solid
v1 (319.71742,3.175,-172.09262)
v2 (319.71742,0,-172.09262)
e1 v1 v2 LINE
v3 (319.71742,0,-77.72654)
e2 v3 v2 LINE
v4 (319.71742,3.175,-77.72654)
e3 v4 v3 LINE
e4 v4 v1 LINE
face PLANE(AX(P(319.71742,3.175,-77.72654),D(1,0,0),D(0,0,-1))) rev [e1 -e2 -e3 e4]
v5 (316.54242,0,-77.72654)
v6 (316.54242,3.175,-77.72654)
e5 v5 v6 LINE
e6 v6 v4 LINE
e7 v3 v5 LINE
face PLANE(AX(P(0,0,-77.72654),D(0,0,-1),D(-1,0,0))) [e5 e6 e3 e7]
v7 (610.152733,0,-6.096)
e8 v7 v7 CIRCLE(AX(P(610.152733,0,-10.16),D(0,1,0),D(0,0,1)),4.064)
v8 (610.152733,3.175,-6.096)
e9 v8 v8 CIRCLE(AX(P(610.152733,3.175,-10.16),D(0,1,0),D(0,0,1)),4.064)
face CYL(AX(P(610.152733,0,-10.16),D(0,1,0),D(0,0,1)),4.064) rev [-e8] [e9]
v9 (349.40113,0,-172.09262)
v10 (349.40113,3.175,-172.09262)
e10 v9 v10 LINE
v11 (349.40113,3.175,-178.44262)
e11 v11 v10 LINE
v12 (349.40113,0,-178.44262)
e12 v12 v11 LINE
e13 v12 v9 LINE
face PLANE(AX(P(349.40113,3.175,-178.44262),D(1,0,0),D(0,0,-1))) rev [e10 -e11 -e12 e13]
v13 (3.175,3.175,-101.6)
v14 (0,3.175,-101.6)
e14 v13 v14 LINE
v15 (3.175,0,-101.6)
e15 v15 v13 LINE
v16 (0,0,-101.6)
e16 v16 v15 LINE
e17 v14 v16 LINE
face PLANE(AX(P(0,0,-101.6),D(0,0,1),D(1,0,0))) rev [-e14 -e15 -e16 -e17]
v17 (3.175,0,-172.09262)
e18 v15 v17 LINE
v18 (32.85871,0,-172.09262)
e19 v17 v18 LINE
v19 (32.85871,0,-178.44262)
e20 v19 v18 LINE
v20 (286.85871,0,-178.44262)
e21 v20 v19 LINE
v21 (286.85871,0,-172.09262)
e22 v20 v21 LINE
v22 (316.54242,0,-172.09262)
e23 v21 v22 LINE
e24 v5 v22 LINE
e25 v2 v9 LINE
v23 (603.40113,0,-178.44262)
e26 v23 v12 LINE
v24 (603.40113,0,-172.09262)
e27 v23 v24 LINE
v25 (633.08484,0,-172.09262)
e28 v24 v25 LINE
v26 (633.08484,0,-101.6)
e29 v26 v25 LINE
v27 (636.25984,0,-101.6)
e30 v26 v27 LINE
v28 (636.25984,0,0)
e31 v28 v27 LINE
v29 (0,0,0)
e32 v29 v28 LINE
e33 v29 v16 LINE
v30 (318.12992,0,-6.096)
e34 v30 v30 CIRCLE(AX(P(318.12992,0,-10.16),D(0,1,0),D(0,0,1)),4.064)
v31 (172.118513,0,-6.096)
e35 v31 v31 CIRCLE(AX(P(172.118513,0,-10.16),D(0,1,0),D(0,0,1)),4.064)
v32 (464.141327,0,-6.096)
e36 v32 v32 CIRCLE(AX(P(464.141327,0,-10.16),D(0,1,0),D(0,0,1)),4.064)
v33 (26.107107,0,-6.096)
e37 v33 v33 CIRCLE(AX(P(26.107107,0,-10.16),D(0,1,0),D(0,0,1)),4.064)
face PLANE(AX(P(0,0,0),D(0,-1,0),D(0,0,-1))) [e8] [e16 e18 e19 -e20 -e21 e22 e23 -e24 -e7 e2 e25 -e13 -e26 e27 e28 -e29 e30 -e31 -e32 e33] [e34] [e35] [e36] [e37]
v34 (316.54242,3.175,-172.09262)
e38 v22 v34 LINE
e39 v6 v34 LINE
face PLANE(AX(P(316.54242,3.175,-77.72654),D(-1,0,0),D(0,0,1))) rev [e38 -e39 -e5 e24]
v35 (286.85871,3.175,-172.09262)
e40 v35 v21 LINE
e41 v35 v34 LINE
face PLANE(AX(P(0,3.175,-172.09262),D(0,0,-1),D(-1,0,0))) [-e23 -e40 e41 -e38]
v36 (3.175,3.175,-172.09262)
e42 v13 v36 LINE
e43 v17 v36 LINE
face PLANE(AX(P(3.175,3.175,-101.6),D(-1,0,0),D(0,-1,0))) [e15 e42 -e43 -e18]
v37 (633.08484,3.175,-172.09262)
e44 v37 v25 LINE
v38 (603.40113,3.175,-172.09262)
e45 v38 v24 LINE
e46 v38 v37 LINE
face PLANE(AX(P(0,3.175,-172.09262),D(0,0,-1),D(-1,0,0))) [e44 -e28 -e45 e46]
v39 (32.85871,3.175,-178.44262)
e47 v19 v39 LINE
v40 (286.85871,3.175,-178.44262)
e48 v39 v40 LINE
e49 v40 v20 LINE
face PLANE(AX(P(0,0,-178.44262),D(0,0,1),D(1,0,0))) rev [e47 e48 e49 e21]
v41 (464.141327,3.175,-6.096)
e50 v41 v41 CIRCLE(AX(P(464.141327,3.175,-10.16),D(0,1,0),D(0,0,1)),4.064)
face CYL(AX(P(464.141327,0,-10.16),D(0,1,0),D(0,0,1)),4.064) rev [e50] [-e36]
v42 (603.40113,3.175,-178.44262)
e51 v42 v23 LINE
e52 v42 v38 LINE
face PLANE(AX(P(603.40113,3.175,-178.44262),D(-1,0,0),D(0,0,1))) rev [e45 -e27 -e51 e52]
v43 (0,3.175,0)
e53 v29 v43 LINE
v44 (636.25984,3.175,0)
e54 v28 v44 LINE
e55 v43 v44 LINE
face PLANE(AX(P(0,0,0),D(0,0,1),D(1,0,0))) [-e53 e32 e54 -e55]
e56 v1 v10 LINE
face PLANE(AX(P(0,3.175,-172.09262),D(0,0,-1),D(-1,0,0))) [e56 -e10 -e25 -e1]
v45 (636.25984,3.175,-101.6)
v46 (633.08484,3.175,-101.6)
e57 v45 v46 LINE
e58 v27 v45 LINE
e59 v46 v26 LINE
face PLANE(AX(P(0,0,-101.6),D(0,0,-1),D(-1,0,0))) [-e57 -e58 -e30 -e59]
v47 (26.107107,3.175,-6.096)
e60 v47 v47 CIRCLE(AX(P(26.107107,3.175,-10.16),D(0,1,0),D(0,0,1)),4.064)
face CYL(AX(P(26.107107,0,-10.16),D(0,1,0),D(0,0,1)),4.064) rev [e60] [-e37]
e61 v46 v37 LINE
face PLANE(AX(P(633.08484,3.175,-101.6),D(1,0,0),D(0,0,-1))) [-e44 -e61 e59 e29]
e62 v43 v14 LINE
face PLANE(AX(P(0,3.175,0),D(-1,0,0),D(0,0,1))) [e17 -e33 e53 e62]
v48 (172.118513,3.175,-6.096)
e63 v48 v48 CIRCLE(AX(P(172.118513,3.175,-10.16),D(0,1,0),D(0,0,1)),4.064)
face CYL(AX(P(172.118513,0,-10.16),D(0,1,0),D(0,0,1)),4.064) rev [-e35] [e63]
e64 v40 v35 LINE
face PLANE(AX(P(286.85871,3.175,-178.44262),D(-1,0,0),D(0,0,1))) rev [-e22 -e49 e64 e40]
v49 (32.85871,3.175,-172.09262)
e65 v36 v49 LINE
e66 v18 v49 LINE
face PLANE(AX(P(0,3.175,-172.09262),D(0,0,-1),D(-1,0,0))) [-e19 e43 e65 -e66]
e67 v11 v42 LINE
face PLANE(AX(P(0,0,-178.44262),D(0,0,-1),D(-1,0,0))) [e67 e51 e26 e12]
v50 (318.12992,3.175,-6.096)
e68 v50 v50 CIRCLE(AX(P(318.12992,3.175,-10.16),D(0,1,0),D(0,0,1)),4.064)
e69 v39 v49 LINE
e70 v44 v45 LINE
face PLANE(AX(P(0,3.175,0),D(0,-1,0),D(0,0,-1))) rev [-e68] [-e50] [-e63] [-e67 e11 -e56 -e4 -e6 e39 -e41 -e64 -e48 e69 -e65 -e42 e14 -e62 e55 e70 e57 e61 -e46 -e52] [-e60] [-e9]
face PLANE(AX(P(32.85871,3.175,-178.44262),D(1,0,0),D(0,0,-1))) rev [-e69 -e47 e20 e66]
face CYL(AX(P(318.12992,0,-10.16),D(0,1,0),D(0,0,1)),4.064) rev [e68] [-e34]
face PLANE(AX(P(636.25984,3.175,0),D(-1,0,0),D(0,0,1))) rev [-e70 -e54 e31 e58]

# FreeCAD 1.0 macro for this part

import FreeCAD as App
import Part
import Sketcher

V = App.Vector
Q = App.Units.Quantity

doc = App.newDocument("Part")
body = doc.addObject("PartDesign::Body", "Body")

# Sketch on XZ plane
sketch1 = body.newObject("Sketcher::SketchObject", "Sketch")
sketch1.AttachmentSupport = (doc.getObject("XZ_Plane"), [""])
sketch1.MapMode = "FlatFace"
sketch1.addGeometry(Part.LineSegment(V(0, -172, 0), V(0, 0, 0)), False)
sketch1.addGeometry(Part.LineSegment(V(0, 0, 0), V(636, 0, 0)), False)
sketch1.addGeometry(Part.LineSegment(V(636, 0, 0), V(636, -172, 0)), False)
sketch1.addGeometry(Part.LineSegment(V(636, -172, 0), V(0, -172, 0)), False)
sketch1.addConstraint(Sketcher.Constraint("Coincident", 0, 2, 1, 1))
sketch1.addConstraint(Sketcher.Constraint("Coincident", 1, 2, 2, 1))
sketch1.addConstraint(Sketcher.Constraint("Coincident", 2, 2, 3, 1))
sketch1.addConstraint(Sketcher.Constraint("Coincident", 3, 2, 0, 1))
sketch1.addConstraint(Sketcher.Constraint("Vertical", 0))
sketch1.addConstraint(Sketcher.Constraint("Horizontal", 1))
sketch1.addConstraint(Sketcher.Constraint("Vertical", 2))
sketch1.addConstraint(Sketcher.Constraint("Horizontal", 3))
sketch1.addConstraint(Sketcher.Constraint("Coincident", 0, 2, -1, 1))
sketch1.addConstraint(Sketcher.Constraint("DistanceX", 1, 1, 1, 2, Q("25.0496 in")))
sketch1.addConstraint(Sketcher.Constraint("DistanceY", 0, 1, 0, 2, Q("6.7753 in")))
pad1 = body.newObject("PartDesign::Pad", "Pad")
pad1.Profile = sketch1
pad1.Length = Q("0.125 in")
pad1.Reversed = True

# Sketch on XY plane
sketch2 = body.newObject("Sketcher::SketchObject", "Sketch001")
sketch2.AttachmentSupport = (doc.getObject("XY_Plane"), [""])
sketch2.MapMode = "FlatFace"
sketch2.AttachmentOffset = App.Placement(V(0, 0, -6.7753 * 25.4), App.Rotation())
sketch2.addGeometry(Part.LineSegment(V(319.7, 3.2, 0), V(319.7, 0, 0)), False)
sketch2.addGeometry(Part.LineSegment(V(319.7, 0, 0), V(316.5, 0, 0)), False)
sketch2.addGeometry(Part.LineSegment(V(316.5, 0, 0), V(316.5, 3.2, 0)), False)
sketch2.addGeometry(Part.LineSegment(V(316.5, 3.2, 0), V(319.7, 3.2, 0)), False)
sketch2.addConstraint(Sketcher.Constraint("Coincident", 0, 2, 1, 1))
sketch2.addConstraint(Sketcher.Constraint("Coincident", 1, 2, 2, 1))
sketch2.addConstraint(Sketcher.Constraint("Coincident", 2, 2, 3, 1))
sketch2.addConstraint(Sketcher.Constraint("Coincident", 3, 2, 0, 1))
sketch2.addConstraint(Sketcher.Constraint("Vertical", 0))
sketch2.addConstraint(Sketcher.Constraint("Horizontal", 1))
sketch2.addConstraint(Sketcher.Constraint("Vertical", 2))
sketch2.addConstraint(Sketcher.Constraint("Horizontal", 3))
sketch2.addConstraint(Sketcher.Constraint("PointOnObject", 0, 2, -1))
sketch2.addConstraint(Sketcher.Constraint("Equal", 3, 0))
sketch2.addConstraint(Sketcher.Constraint("DistanceX", 1, 2, 1, 1, Q("0.125 in")))
sketch2.addConstraint(Sketcher.Constraint("DistanceX", -1, 1, 0, 2, Q("12.5873 in")))
pocket1 = body.newObject("PartDesign::Pocket", "Pocket")
pocket1.Profile = sketch2
pocket1.Length = Q("3.7152 in")
pocket1.Reversed = True

# Sketch on XY plane
sketch3 = body.newObject("Sketcher::SketchObject", "Sketch002")
sketch3.AttachmentSupport = (doc.getObject("XY_Plane"), [""])
sketch3.MapMode = "FlatFace"
sketch3.AttachmentOffset = App.Placement(V(0, 0, -6.7753 * 25.4), App.Rotation())
sketch3.addGeometry(Part.LineSegment(V(0, 3.2, 0), V(0, 0, 0)), False)
sketch3.addGeometry(Part.LineSegment(V(0, 0, 0), V(3.2, 0, 0)), False)
sketch3.addGeometry(Part.LineSegment(V(3.2, 0, 0), V(3.2, 3.2, 0)), False)
sketch3.addGeometry(Part.LineSegment(V(3.2, 3.2, 0), V(0, 3.2, 0)), False)
sketch3.addGeometry(Part.LineSegment(V(633.1, 3.2, 0), V(633.1, 0, 0)), False)
sketch3.addGeometry(Part.LineSegment(V(633.1, 0, 0), V(636.3, 0, 0)), False)
sketch3.addGeometry(Part.LineSegment(V(636.3, 0, 0), V(636.3, 3.2, 0)), False)
sketch3.addGeometry(Part.LineSegment(V(636.3, 3.2, 0), V(633.1, 3.2, 0)), False)
sketch3.addConstraint(Sketcher.Constraint("Coincident", 0, 2, 1, 1))
sketch3.addConstraint(Sketcher.Constraint("Coincident", 1, 2, 2, 1))
sketch3.addConstraint(Sketcher.Constraint("Coincident", 2, 2, 3, 1))
sketch3.addConstraint(Sketcher.Constraint("Coincident", 3, 2, 0, 1))
sketch3.addConstraint(Sketcher.Constraint("Coincident", 4, 2, 5, 1))
sketch3.addConstraint(Sketcher.Constraint("Coincident", 5, 2, 6, 1))
sketch3.addConstraint(Sketcher.Constraint("Coincident", 6, 2, 7, 1))
sketch3.addConstraint(Sketcher.Constraint("Coincident", 7, 2, 4, 1))
sketch3.addConstraint(Sketcher.Constraint("Vertical", 0))
sketch3.addConstraint(Sketcher.Constraint("Horizontal", 1))
sketch3.addConstraint(Sketcher.Constraint("Vertical", 2))
sketch3.addConstraint(Sketcher.Constraint("Horizontal", 3))
sketch3.addConstraint(Sketcher.Constraint("Vertical", 4))
sketch3.addConstraint(Sketcher.Constraint("Horizontal", 5))
sketch3.addConstraint(Sketcher.Constraint("Vertical", 6))
sketch3.addConstraint(Sketcher.Constraint("Horizontal", 7))
sketch3.addConstraint(Sketcher.Constraint("Coincident", 0, 2, -1, 1))
sketch3.addConstraint(Sketcher.Constraint("PointOnObject", 4, 2, -1))
sketch3.addConstraint(Sketcher.Constraint("Horizontal", 3, 2, 6, 2))
sketch3.addConstraint(Sketcher.Constraint("Equal", 3, 5))
sketch3.addConstraint(Sketcher.Constraint("Equal", 7, 0))
sketch3.addConstraint(Sketcher.Constraint("DistanceX", 1, 1, 1, 2, Q("0.125 in")))
sketch3.addConstraint(Sketcher.Constraint("DistanceX", -1, 1, 4, 2, Q("24.9246 in")))
pocket2 = body.newObject("PartDesign::Pocket", "Pocket001")
pocket2.Profile = sketch3
pocket2.Length = Q("2.7753 in")
pocket2.Reversed = True

# Sketch on XZ plane
sketch4 = body.newObject("Sketcher::SketchObject", "Sketch003")
sketch4.AttachmentSupport = (doc.getObject("XZ_Plane"), [""])
sketch4.MapMode = "FlatFace"
sketch4.AttachmentOffset = App.Placement(V(0, 0, -0.125 * 25.4), App.Rotation())
sketch4.addGeometry(Part.LineSegment(V(0, -24, 0), V(0, 0, 0)), False)
sketch4.addGeometry(Part.LineSegment(V(0, 0, 0), V(636, 0, 0)), False)
sketch4.addGeometry(Part.LineSegment(V(636, 0, 0), V(636, -24, 0)), False)
sketch4.addGeometry(Part.LineSegment(V(636, -24, 0), V(0, -24, 0)), False)
sketch4.addConstraint(Sketcher.Constraint("Coincident", 0, 2, 1, 1))
sketch4.addConstraint(Sketcher.Constraint("Coincident", 1, 2, 2, 1))
sketch4.addConstraint(Sketcher.Constraint("Coincident", 2, 2, 3, 1))
sketch4.addConstraint(Sketcher.Constraint("Coincident", 3, 2, 0, 1))
sketch4.addConstraint(Sketcher.Constraint("Vertical", 0))
sketch4.addConstraint(Sketcher.Constraint("Horizontal", 1))
sketch4.addConstraint(Sketcher.Constraint("Vertical", 2))
sketch4.addConstraint(Sketcher.Constraint("Horizontal", 3))
sketch4.addConstraint(Sketcher.Constraint("Coincident", 0, 2, -1, 1))
sketch4.addConstraint(Sketcher.Constraint("DistanceX", 1, 1, 1, 2, Q("25.0496 in")))
sketch4.addConstraint(Sketcher.Constraint("DistanceY", 0, 1, 0, 2, Q("0.9604 in")))
pocket3 = body.newObject("PartDesign::Pocket", "Pocket002")
pocket3.Profile = sketch4
pocket3.Type = "ThroughAll"
pocket3.Reversed = True

# Sketch on XZ plane
sketch5 = body.newObject("Sketcher::SketchObject", "Sketch004")
sketch5.AttachmentSupport = (doc.getObject("XZ_Plane"), [""])
sketch5.MapMode = "FlatFace"
sketch5.AttachmentOffset = App.Placement(V(0, 0, -0.125 * 25.4), App.Rotation())
sketch5.addGeometry(Part.LineSegment(V(0, -24, 0), V(0, 0, 0)), False)
sketch5.addGeometry(Part.LineSegment(V(0, 0, 0), V(636, 0, 0)), False)
sketch5.addGeometry(Part.LineSegment(V(636, 0, 0), V(636, -24, 0)), False)
sketch5.addGeometry(Part.LineSegment(V(636, -24, 0), V(0, -24, 0)), False)
sketch5.addConstraint(Sketcher.Constraint("Coincident", 0, 2, 1, 1))
sketch5.addConstraint(Sketcher.Constraint("Coincident", 1, 2, 2, 1))
sketch5.addConstraint(Sketcher.Constraint("Coincident", 2, 2, 3, 1))
sketch5.addConstraint(Sketcher.Constraint("Coincident", 3, 2, 0, 1))
sketch5.addConstraint(Sketcher.Constraint("Vertical", 0))
sketch5.addConstraint(Sketcher.Constraint("Horizontal", 1))
sketch5.addConstraint(Sketcher.Constraint("Vertical", 2))
sketch5.addConstraint(Sketcher.Constraint("Horizontal", 3))
sketch5.addConstraint(Sketcher.Constraint("Coincident", 0, 2, -1, 1))
sketch5.addConstraint(Sketcher.Constraint("DistanceX", 1, 1, 1, 2, Q("25.0496 in")))
sketch5.addConstraint(Sketcher.Constraint("DistanceY", 0, 1, 0, 2, Q("0.9604 in")))
pad2 = body.newObject("PartDesign::Pad", "Pad001")
pad2.Profile = sketch5
pad2.Length = Q("0.125 in")

# Sketch on XY plane
sketch6 = body.newObject("Sketcher::SketchObject", "Sketch005")
sketch6.AttachmentSupport = (doc.getObject("XY_Plane"), [""])
sketch6.MapMode = "FlatFace"
sketch6.AttachmentOffset = App.Placement(V(0, 0, -6.7753 * 25.4), App.Rotation())
sketch6.addGeometry(Part.LineSegment(V(603.4, 3.2, 0), V(603.4, 0, 0)), False)
sketch6.addGeometry(Part.LineSegment(V(603.4, 0, 0), V(349.4, 0, 0)), False)
sketch6.addGeometry(Part.LineSegment(V(349.4, 0, 0), V(349.4, 3.2, 0)), False)
sketch6.addGeometry(Part.LineSegment(V(349.4, 3.2, 0), V(603.4, 3.2, 0)), False)
sketch6.addGeometry(Part.LineSegment(V(286.9, 3.2, 0), V(286.9, 0, 0)), False)
sketch6.addGeometry(Part.LineSegment(V(286.9, 0, 0), V(32.9, 0, 0)), False)
sketch6.addGeometry(Part.LineSegment(V(32.9, 0, 0), V(32.9, 3.2, 0)), False)
sketch6.addGeometry(Part.LineSegment(V(32.9, 3.2, 0), V(286.9, 3.2, 0)), False)
sketch6.addConstraint(Sketcher.Constraint("Coincident", 0, 2, 1, 1))
sketch6.addConstraint(Sketcher.Constraint("Coincident", 1, 2, 2, 1))
sketch6.addConstraint(Sketcher.Constraint("Coincident", 2, 2, 3, 1))
sketch6.addConstraint(Sketcher.Constraint("Coincident", 3, 2, 0, 1))
sketch6.addConstraint(Sketcher.Constraint("Coincident", 4, 2, 5, 1))
sketch6.addConstraint(Sketcher.Constraint("Coincident", 5, 2, 6, 1))
sketch6.addConstraint(Sketcher.Constraint("Coincident", 6, 2, 7, 1))
sketch6.addConstraint(Sketcher.Constraint("Coincident", 7, 2, 4, 1))
sketch6.addConstraint(Sketcher.Constraint("Vertical", 0))
sketch6.addConstraint(Sketcher.Constraint("Horizontal", 1))
sketch6.addConstraint(Sketcher.Constraint("Vertical", 2))
sketch6.addConstraint(Sketcher.Constraint("Horizontal", 3))
sketch6.addConstraint(Sketcher.Constraint("Vertical", 4))
sketch6.addConstraint(Sketcher.Constraint("Horizontal", 5))
sketch6.addConstraint(Sketcher.Constraint("Vertical", 6))
sketch6.addConstraint(Sketcher.Constraint("Horizontal", 7))
sketch6.addConstraint(Sketcher.Constraint("PointOnObject", 0, 2, -1))
sketch6.addConstraint(Sketcher.Constraint("PointOnObject", 4, 2, -1))
sketch6.addConstraint(Sketcher.Constraint("Horizontal", 3, 2, 6, 2))
sketch6.addConstraint(Sketcher.Constraint("Equal", 3, 5))
sketch6.addConstraint(Sketcher.Constraint("DistanceX", 1, 2, 1, 1, Q("10 in")))
sketch6.addConstraint(Sketcher.Constraint("DistanceY", 0, 2, 0, 1, Q("0.125 in")))
sketch6.addConstraint(Sketcher.Constraint("DistanceX", 4, 2, 1, 2, Q("2.4623 in")))
sketch6.addConstraint(Sketcher.Constraint("DistanceX", -1, 1, 0, 2, 603.40113))
pad3 = body.newObject("PartDesign::Pad", "Pad002")
pad3.Profile = sketch6
pad3.Length = Q("0.25 in")
pad3.Reversed = True

# Sketch on XZ plane
sketch7 = body.newObject("Sketcher::SketchObject", "Sketch006")
sketch7.AttachmentSupport = (doc.getObject("XZ_Plane"), [""])
sketch7.MapMode = "FlatFace"
sketch7.AttachmentOffset = App.Placement(V(0, 0, -0.125 * 25.4), App.Rotation())
sketch7.addGeometry(Part.Circle(V(26.1, -10.2, 0), V(0, 0, 1), 4.1), False)
sketch7.addGeometry(Part.Circle(V(172.1, -10.2, 0), V(0, 0, 1), 4.1), False)
sketch7.addGeometry(Part.Circle(V(318.1, -10.2, 0), V(0, 0, 1), 4.1), False)
sketch7.addGeometry(Part.Circle(V(464.1, -10.2, 0), V(0, 0, 1), 4.1), False)
sketch7.addGeometry(Part.Circle(V(610.2, -10.2, 0), V(0, 0, 1), 4.1), False)
sketch7.addConstraint(Sketcher.Constraint("Equal", 0, 1))
sketch7.addConstraint(Sketcher.Constraint("Equal", 1, 2))
sketch7.addConstraint(Sketcher.Constraint("Equal", 2, 3))
sketch7.addConstraint(Sketcher.Constraint("Equal", 3, 4))
sketch7.addConstraint(Sketcher.Constraint("Horizontal", 0, 3, 1, 3))
sketch7.addConstraint(Sketcher.Constraint("Horizontal", 1, 3, 2, 3))
sketch7.addConstraint(Sketcher.Constraint("Horizontal", 2, 3, 3, 3))
sketch7.addConstraint(Sketcher.Constraint("Horizontal", 3, 3, 4, 3))
sketch7.addConstraint(Sketcher.Constraint("Diameter", 0, Q("0.32 in")))
sketch7.addConstraint(Sketcher.Constraint("DistanceY", 0, 3, -1, 1, Q("0.4 in")))
sketch7.addConstraint(Sketcher.Constraint("DistanceX", -1, 1, 2, 3, Q("12.5248 in")))
sketch7.addConstraint(Sketcher.Constraint("DistanceX", 0, 3, 3, 3, 438.03422))
sketch7.addConstraint(Sketcher.Constraint("DistanceX", 1, 3, 4, 3, 438.03422))
sketch7.addConstraint(Sketcher.Constraint("DistanceX", -1, 1, 0, 3, 26.107107))
sketch7.addConstraint(Sketcher.Constraint("DistanceX", -1, 1, 1, 3, 172.118513))
pocket4 = body.newObject("PartDesign::Pocket", "Pocket003")
pocket4.Profile = sketch7
pocket4.Type = "ThroughAll"
pocket4.Reversed = True

doc.recompute()
